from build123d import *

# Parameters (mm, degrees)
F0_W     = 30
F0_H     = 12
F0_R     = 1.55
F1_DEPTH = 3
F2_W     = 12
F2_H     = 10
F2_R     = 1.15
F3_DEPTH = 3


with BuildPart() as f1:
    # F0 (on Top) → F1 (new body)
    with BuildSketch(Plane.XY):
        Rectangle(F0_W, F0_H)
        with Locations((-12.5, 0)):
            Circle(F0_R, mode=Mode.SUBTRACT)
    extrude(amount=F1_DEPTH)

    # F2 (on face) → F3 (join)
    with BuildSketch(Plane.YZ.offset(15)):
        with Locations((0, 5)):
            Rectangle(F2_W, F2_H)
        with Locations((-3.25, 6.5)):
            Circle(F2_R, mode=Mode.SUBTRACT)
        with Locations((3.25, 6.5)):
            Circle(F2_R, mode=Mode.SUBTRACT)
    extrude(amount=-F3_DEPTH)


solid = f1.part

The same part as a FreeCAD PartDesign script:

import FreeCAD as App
import Part
import Sketcher
from FreeCAD import Vector

doc = App.newDocument("Part")
body = doc.addObject("PartDesign::Body", "Body")

# Sketch on XY plane
sketch1 = doc.addObject("Sketcher::SketchObject", "Sketch")
body.addObject(sketch1)
sketch1.AttachmentSupport = (doc.XY_Plane, [""])
sketch1.MapMode = "FlatFace"
sketch1.addGeometry([
    Part.LineSegment(Vector(-15, 6, 0), Vector(-15, -6, 0)),  # 0
    Part.LineSegment(Vector(-15, -6, 0), Vector(15, -6, 0)),  # 1
    Part.LineSegment(Vector(15, -6, 0), Vector(15, 6, 0)),  # 2
    Part.LineSegment(Vector(15, 6, 0), Vector(-15, 6, 0)),  # 3
    Part.Circle(Vector(-12.5, 0, 0), Vector(0, 0, 1), 1.6),  # 4
], False)
sketch1.addConstraint([
    Sketcher.Constraint("Coincident", 0, 2, 1, 1),
    Sketcher.Constraint("Coincident", 1, 2, 2, 1),
    Sketcher.Constraint("Coincident", 2, 2, 3, 1),
    Sketcher.Constraint("Coincident", 3, 2, 0, 1),
    Sketcher.Constraint("Vertical", 0),
    Sketcher.Constraint("Horizontal", 1),
    Sketcher.Constraint("Vertical", 2),
    Sketcher.Constraint("Horizontal", 3),
    Sketcher.Constraint("Symmetric", 0, 2, 2, 2, -1, 1),
    Sketcher.Constraint("PointOnObject", 4, 3, -1),
    Sketcher.Constraint("Diameter", 4, 3.1),
    Sketcher.Constraint("DistanceX", 1, 1, 1, 2, 30.0),
    Sketcher.Constraint("DistanceY", 0, 2, 0, 1, 12.0),
    Sketcher.Constraint("DistanceX", 4, 3, -1, 1, 12.5),
])
pad1 = doc.addObject("PartDesign::Pad", "Pad")
body.addObject(pad1)
pad1.Profile = sketch1
pad1.Length = 3

# Sketch on YZ plane
sketch2 = doc.addObject("Sketcher::SketchObject", "Sketch001")
body.addObject(sketch2)
sketch2.AttachmentSupport = (doc.YZ_Plane, [""])
sketch2.MapMode = "FlatFace"
sketch2.AttachmentOffset = App.Placement(Vector(0, 0, 15), App.Rotation())
sketch2.addGeometry([
    Part.LineSegment(Vector(-6, 10, 0), Vector(-6, 0, 0)),  # 0
    Part.LineSegment(Vector(-6, 0, 0), Vector(6, 0, 0)),  # 1
    Part.LineSegment(Vector(6, 0, 0), Vector(6, 10, 0)),  # 2
    Part.LineSegment(Vector(6, 10, 0), Vector(-6, 10, 0)),  # 3
    Part.Circle(Vector(-3.2, 6.5, 0), Vector(0, 0, 1), 1.1),  # 4
    Part.Circle(Vector(3.2, 6.5, 0), Vector(0, 0, 1), 1.1),  # 5
], False)
sketch2.addConstraint([
    Sketcher.Constraint("Coincident", 0, 2, 1, 1),
    Sketcher.Constraint("Coincident", 1, 2, 2, 1),
    Sketcher.Constraint("Coincident", 2, 2, 3, 1),
    Sketcher.Constraint("Coincident", 3, 2, 0, 1),
    Sketcher.Constraint("Vertical", 0),
    Sketcher.Constraint("Horizontal", 1),
    Sketcher.Constraint("Vertical", 2),
    Sketcher.Constraint("Horizontal", 3),
    Sketcher.Constraint("Equal", 4, 5),
    Sketcher.Constraint("Symmetric", 0, 2, 1, 2, -1, 1),
    Sketcher.Constraint("Symmetric", 4, 3, 5, 3, -2),
    Sketcher.Constraint("Diameter", 4, 2.3),
    Sketcher.Constraint("DistanceX", 1, 1, 1, 2, 12.0),
    Sketcher.Constraint("DistanceY", 0, 2, 0, 1, 10.0),
    Sketcher.Constraint("DistanceY", -1, 1, 4, 3, 6.5),
    Sketcher.Constraint("DistanceX", 4, 3, 5, 3, 6.5),
])
pad2 = doc.addObject("PartDesign::Pad", "Pad001")
body.addObject(pad2)
pad2.Profile = sketch2
pad2.Length = 3
pad2.Reversed = True

doc.recompute()
